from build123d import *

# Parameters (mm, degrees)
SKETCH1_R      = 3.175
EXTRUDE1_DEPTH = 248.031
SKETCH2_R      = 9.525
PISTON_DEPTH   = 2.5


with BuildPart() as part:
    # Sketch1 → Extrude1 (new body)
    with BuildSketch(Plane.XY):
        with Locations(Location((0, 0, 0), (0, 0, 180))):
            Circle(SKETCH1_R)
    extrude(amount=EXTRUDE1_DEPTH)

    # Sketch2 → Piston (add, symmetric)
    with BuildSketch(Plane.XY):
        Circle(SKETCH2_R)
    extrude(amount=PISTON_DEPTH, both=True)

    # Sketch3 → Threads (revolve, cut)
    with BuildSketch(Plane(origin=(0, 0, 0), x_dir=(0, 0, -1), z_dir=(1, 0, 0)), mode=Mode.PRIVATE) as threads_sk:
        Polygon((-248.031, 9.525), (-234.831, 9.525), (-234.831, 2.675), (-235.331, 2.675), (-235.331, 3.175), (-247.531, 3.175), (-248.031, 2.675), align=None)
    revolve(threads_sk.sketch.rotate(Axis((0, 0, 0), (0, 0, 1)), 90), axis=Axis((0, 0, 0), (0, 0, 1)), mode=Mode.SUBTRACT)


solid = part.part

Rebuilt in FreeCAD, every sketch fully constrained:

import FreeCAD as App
import Part
import Sketcher

V = App.Vector
Q = App.Units.Quantity


def add_polygon(sketch, points):
    """Adds a closed chain of lines whose ends are joined by coincident constraints."""
    first, n = sketch.GeometryCount, len(points)
    for a, b in zip(points, points[1:] + points[:1]):
        sketch.addGeometry(Part.LineSegment(App.Vector(*a, 0), App.Vector(*b, 0)), False)
    for i in range(n):
        sketch.addConstraint(Sketcher.Constraint("Coincident", first + i, 2, first + (i + 1) % n, 1))

doc = App.newDocument("Part")
body = doc.addObject("PartDesign::Body", "Body")

# Sketch on XY plane
sketch1 = doc.addObject("Sketcher::SketchObject", "Sketch")
body.addObject(sketch1)
sketch1.AttachmentSupport = (doc.XY_Plane, [""])
sketch1.MapMode = "FlatFace"
sketch1.addGeometry(Part.Circle(V(0, 0, 0), V(0, 0, 1), 3.2), False)
sketch1.addConstraint([
    Sketcher.Constraint("Coincident", 0, 3, -1, 1),
    Sketcher.Constraint("Diameter", 0, 6.35),
])
pad1 = doc.addObject("PartDesign::Pad", "Pad")
body.addObject(pad1)
pad1.Profile = sketch1
pad1.Length = 248.031

# Sketch on XY plane
sketch2 = doc.addObject("Sketcher::SketchObject", "Sketch001")
body.addObject(sketch2)
sketch2.AttachmentSupport = (doc.XY_Plane, [""])
sketch2.MapMode = "FlatFace"
sketch2.addGeometry(Part.Circle(V(0, 0, 0), V(0, 0, 1), 10), False)
sketch2.addConstraint([
    Sketcher.Constraint("Coincident", 0, 3, -1, 1),
    Sketcher.Constraint("Diameter", 0, 19.05),
])
pad2 = doc.addObject("PartDesign::Pad", "Pad001")
body.addObject(pad2)
pad2.Profile = sketch2
pad2.Length = 5
pad2.Midplane = True

# Sketch on YZ plane
sketch3 = doc.addObject("Sketcher::SketchObject", "Sketch002")
body.addObject(sketch3)
sketch3.AttachmentSupport = (doc.YZ_Plane, [""])
sketch3.MapMode = "FlatFace"
add_polygon(sketch3, [(9.5, 234.8), (9.5, 248), (2.7, 248), (3.2, 247.5), (3.2, 235.3), (2.7, 235.3), (2.7, 234.8)])  # lines 0-6
sketch3.addConstraint([
    Sketcher.Constraint("Vertical", 0),
    Sketcher.Constraint("Horizontal", 1),
    Sketcher.Constraint("Vertical", 3),
    Sketcher.Constraint("Horizontal", 4),
    Sketcher.Constraint("Vertical", 5),
    Sketcher.Constraint("Horizontal", 6),
    Sketcher.Constraint("Vertical", 1, 2, 4, 2),
    Sketcher.Constraint("Equal", 4, 5),
    Sketcher.Constraint("Angle", 2, Q("-45 deg")),
    Sketcher.Constraint("DistanceX", 4, 2, 4, 1, 0.5),
    Sketcher.Constraint("DistanceY", 0, 1, 0, 2, 13.2),
    Sketcher.Constraint("DistanceX", 1, 2, 1, 1, 6.85),
    Sketcher.Constraint("DistanceX", -1, 1, 0, 2, 9.525),
    Sketcher.Constraint("DistanceY", -1, 1, 0, 2, 248.031),
])
groove = doc.addObject("PartDesign::Groove", "Groove")
body.addObject(groove)
groove.Profile = sketch3
groove.ReferenceAxis = (sketch3, ["V_Axis"])
groove.Angle = 360

doc.recompute()
